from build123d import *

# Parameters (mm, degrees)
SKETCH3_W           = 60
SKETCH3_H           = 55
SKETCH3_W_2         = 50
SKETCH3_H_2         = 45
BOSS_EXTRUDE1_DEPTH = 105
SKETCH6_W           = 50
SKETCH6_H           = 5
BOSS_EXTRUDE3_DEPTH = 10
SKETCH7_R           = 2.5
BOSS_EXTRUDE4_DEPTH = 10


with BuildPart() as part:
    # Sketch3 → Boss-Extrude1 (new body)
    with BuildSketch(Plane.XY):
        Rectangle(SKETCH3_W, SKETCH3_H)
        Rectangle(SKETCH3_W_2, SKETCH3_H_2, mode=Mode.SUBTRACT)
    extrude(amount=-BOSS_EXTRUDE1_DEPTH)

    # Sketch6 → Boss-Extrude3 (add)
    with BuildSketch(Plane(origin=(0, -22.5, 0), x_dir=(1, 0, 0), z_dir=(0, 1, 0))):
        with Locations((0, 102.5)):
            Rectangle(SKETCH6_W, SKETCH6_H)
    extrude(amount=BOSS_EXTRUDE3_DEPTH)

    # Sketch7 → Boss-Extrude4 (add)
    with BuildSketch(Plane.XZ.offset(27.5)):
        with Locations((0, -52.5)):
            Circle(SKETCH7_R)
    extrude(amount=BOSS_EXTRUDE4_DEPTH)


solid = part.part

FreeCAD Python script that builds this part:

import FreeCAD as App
import Part
import Sketcher


def add_polygon(sketch, points):
    """Adds a closed chain of lines whose ends are joined by coincident constraints."""
    first, n = sketch.GeometryCount, len(points)
    for a, b in zip(points, points[1:] + points[:1]):
        sketch.addGeometry(Part.LineSegment(App.Vector(*a, 0), App.Vector(*b, 0)), False)
    for i in range(n):
        sketch.addConstraint(Sketcher.Constraint("Coincident", first + i, 2, first + (i + 1) % n, 1))

doc = App.newDocument("Part")
body = doc.addObject("PartDesign::Body", "Body")

sketch1 = body.newObject("Sketcher::SketchObject", "Sketch")
sketch1.AttachmentSupport = (doc.getObject("XY_Plane"), [""])
sketch1.MapMode = "FlatFace"
add_polygon(sketch1, [(-30, 28), (-30, -28), (30, -28), (30, 28)])
add_polygon(sketch1, [(25, -22), (-25, -22), (-25, 22), (25, 22)])
sketch1.addConstraint([
    Sketcher.Constraint("Vertical", 0),
    Sketcher.Constraint("Horizontal", 1),
    Sketcher.Constraint("Vertical", 2),
    Sketcher.Constraint("Horizontal", 3),
    Sketcher.Constraint("Horizontal", 4),
    Sketcher.Constraint("Vertical", 5),
    Sketcher.Constraint("Horizontal", 6),
    Sketcher.Constraint("Vertical", 7),
    Sketcher.Constraint("Symmetric", 0, 2, 2, 2, -1, 1),
    Sketcher.Constraint("Symmetric", 4, 2, 6, 2, -1, 1),
    Sketcher.Constraint("DistanceX", 1, 1, 1, 2, 60.0),
    Sketcher.Constraint("DistanceX", 4, 2, 4, 1, 50.0),
    Sketcher.Constraint("DistanceY", 0, 2, 0, 1, 55.0),
    Sketcher.Constraint("DistanceY", 5, 1, 5, 2, 45.0),
])
pad1 = body.newObject("PartDesign::Pad", "Pad")
pad1.Profile = sketch1
pad1.Length = 105
pad1.Reversed = True

sketch2 = body.newObject("Sketcher::SketchObject", "Sketch001")
sketch2.AttachmentSupport = (doc.getObject("XZ_Plane"), [""])
sketch2.MapMode = "FlatFace"
sketch2.AttachmentOffset = App.Placement(App.Vector(0, 0, 22.5), App.Rotation())
add_polygon(sketch2, [(-25, -105), (-25, -100), (25, -100), (25, -105)])
sketch2.addConstraint([
    Sketcher.Constraint("Vertical", 0),
    Sketcher.Constraint("Horizontal", 1),
    Sketcher.Constraint("Vertical", 2),
    Sketcher.Constraint("Horizontal", 3),
    Sketcher.Constraint("DistanceX", 1, 1, 1, 2, 50.0),
    Sketcher.Constraint("DistanceY", 0, 1, 0, 2, 5.0),
    Sketcher.Constraint("DistanceX", 0, 2, -1, 1, 25.0),
    Sketcher.Constraint("DistanceY", 0, 2, -1, 1, 100.0),
])
pad2 = body.newObject("PartDesign::Pad", "Pad001")
pad2.Profile = sketch2
pad2.Length = 10
pad2.Reversed = True

sketch3 = body.newObject("Sketcher::SketchObject", "Sketch002")
sketch3.AttachmentSupport = (doc.getObject("XZ_Plane"), [""])
sketch3.MapMode = "FlatFace"
sketch3.AttachmentOffset = App.Placement(App.Vector(0, 0, 27.5), App.Rotation())
sketch3.addGeometry(Part.Circle(App.Vector(0, -52.5, 0), App.Vector(0, 0, 1), 2.5), False)
sketch3.addConstraint([
    Sketcher.Constraint("PointOnObject", 0, 3, -2),
    Sketcher.Constraint("Diameter", 0, 5.0),
    Sketcher.Constraint("DistanceY", 0, 3, -1, 1, 52.5),
])
pad3 = body.newObject("PartDesign::Pad", "Pad002")
pad3.Profile = sketch3
pad3.Length = 10

doc.recompute()
